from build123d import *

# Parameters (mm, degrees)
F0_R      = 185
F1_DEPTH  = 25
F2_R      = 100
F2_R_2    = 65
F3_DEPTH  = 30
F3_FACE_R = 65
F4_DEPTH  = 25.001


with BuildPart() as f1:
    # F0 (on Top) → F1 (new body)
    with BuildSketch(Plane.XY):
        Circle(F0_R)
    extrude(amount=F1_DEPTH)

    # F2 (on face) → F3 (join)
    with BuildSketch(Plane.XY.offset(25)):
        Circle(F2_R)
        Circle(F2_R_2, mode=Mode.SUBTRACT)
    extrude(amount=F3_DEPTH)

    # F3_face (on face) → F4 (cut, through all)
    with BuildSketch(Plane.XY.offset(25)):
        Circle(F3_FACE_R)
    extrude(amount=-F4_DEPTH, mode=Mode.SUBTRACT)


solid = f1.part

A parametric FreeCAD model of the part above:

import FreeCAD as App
import Part
import Sketcher
from FreeCAD import Vector
Q = App.Units.Quantity

doc = App.newDocument("Part")
body = doc.addObject("PartDesign::Body", "Body")

# Sketch on XY plane
sketch1 = doc.addObject("Sketcher::SketchObject", "Sketch")
body.addObject(sketch1)
sketch1.AttachmentSupport = (doc.XY_Plane, [""])
sketch1.MapMode = "FlatFace"
sketch1.addGeometry(Part.Circle(Vector(0, 0, 0), Vector(0, 0, 1), 185), False)
sketch1.addConstraint(Sketcher.Constraint("Coincident", 0, 3, -1, 1))
sketch1.addConstraint(Sketcher.Constraint("Diameter", 0, Q("370 mm")))
pad1 = doc.addObject("PartDesign::Pad", "Pad")
body.addObject(pad1)
pad1.Profile = sketch1
pad1.Length = 25

# Sketch on XY plane
sketch2 = doc.addObject("Sketcher::SketchObject", "Sketch001")
body.addObject(sketch2)
sketch2.AttachmentSupport = (doc.XY_Plane, [""])
sketch2.MapMode = "FlatFace"
sketch2.AttachmentOffset = App.Placement(Vector(0, 0, 25), App.Rotation())
sketch2.addGeometry(Part.Circle(Vector(0, 0, 0), Vector(0, 0, 1), 100), False)
sketch2.addGeometry(Part.Circle(Vector(0, 0, 0), Vector(0, 0, 1), 65), False)
sketch2.addConstraint(Sketcher.Constraint("Coincident", 0, 3, -1, 1))
sketch2.addConstraint(Sketcher.Constraint("Coincident", 1, 3, -1, 1))
sketch2.addConstraint(Sketcher.Constraint("Diameter", 0, Q("200 mm")))
sketch2.addConstraint(Sketcher.Constraint("Diameter", 1, Q("130 mm")))
pad2 = doc.addObject("PartDesign::Pad", "Pad001")
body.addObject(pad2)
pad2.Profile = sketch2
pad2.Length = 30

# Sketch on XY plane
sketch3 = doc.addObject("Sketcher::SketchObject", "Sketch002")
body.addObject(sketch3)
sketch3.AttachmentSupport = (doc.XY_Plane, [""])
sketch3.MapMode = "FlatFace"
sketch3.AttachmentOffset = App.Placement(Vector(0, 0, 25), App.Rotation())
sketch3.addGeometry(Part.Circle(Vector(0, 0, 0), Vector(0, 0, 1), 65), False)
sketch3.addConstraint(Sketcher.Constraint("Coincident", 0, 3, -1, 1))
sketch3.addConstraint(Sketcher.Constraint("Diameter", 0, Q("130 mm")))
pocket1 = doc.addObject("PartDesign::Pocket", "Pocket")
body.addObject(pocket1)
pocket1.Profile = sketch3
pocket1.Type = "ThroughAll"

doc.recompute()
